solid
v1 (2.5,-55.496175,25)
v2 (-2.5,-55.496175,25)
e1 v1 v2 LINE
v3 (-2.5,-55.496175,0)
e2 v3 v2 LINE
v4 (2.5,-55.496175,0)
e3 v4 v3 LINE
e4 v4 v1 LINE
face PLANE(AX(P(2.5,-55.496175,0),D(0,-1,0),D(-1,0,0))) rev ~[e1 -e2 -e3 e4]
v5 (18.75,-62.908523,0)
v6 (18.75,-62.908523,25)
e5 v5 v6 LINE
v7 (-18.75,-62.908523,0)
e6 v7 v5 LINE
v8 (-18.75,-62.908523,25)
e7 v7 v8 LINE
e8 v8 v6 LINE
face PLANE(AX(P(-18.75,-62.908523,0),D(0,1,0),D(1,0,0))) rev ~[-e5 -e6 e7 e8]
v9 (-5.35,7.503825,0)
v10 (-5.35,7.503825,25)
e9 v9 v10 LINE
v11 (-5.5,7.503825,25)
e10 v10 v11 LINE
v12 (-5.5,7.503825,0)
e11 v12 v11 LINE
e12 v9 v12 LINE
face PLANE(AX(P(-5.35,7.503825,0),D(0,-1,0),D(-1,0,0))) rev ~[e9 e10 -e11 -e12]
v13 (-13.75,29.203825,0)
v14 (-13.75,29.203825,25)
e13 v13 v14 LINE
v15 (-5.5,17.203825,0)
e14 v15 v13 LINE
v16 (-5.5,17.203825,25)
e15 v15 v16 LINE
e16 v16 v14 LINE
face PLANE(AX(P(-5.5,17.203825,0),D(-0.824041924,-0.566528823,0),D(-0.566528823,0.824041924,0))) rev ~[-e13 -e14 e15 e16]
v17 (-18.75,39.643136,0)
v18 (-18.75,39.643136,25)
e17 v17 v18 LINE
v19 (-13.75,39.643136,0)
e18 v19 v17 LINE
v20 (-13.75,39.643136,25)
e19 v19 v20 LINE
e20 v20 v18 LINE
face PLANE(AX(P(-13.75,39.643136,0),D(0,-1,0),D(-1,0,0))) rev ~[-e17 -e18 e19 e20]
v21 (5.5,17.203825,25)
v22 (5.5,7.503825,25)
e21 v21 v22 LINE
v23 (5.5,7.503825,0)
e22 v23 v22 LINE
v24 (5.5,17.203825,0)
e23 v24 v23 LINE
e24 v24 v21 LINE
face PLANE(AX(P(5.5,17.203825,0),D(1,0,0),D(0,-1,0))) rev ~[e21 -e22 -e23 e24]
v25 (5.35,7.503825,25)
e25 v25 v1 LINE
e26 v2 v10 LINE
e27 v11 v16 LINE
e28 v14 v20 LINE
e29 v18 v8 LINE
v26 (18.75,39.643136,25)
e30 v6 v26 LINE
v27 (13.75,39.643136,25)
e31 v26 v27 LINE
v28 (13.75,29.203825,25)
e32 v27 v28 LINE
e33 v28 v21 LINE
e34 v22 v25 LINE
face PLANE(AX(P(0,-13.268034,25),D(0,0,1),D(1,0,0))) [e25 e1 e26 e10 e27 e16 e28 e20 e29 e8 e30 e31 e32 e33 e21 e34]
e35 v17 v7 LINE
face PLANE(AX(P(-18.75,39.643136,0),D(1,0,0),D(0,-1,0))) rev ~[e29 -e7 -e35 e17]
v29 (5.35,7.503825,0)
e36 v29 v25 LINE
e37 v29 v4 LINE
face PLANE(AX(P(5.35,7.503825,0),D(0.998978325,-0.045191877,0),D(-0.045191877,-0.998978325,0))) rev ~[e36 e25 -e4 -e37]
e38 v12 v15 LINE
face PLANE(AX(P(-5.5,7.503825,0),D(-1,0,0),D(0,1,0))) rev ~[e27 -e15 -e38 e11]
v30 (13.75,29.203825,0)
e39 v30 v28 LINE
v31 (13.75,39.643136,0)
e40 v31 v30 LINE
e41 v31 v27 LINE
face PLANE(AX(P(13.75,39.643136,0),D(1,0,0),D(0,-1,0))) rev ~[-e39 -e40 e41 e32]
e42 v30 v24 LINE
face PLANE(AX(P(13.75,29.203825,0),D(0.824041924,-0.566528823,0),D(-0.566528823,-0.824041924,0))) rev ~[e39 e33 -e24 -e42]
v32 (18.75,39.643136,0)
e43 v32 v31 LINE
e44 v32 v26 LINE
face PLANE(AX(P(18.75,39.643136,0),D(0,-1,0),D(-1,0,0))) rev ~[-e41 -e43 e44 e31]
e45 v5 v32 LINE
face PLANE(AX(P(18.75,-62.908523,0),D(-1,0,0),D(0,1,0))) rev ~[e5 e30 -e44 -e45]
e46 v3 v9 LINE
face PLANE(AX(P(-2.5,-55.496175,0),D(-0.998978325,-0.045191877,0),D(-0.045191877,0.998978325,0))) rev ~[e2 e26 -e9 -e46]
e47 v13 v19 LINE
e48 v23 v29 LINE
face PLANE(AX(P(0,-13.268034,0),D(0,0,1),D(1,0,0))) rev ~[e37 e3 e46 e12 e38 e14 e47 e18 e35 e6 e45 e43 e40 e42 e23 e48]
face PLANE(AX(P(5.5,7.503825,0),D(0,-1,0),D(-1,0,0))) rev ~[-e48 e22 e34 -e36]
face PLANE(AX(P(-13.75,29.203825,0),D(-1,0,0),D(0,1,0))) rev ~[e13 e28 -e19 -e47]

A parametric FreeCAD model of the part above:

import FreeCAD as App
import Part
import Sketcher

doc = App.newDocument("Part")
params = doc.addObject("Spreadsheet::Sheet", "Params")
for row, (alias, value) in enumerate([
    ("sketch1_width", "5 mm"),
    ("sketch1_width2", "37.5 mm"),
    ("sketch1_height", "9.7 mm"),
    ("sketch1_width3", "0.15 mm"),
    ("pad1_length", "25 mm"),
], start=1):
    params.set(f"A{row}", alias)
    params.set(f"B{row}", "=" + value)
    params.setAlias(f"B{row}", alias)

body = doc.addObject("PartDesign::Body", "Body")

# Sketch on XY plane
sketch1 = doc.addObject("Sketcher::SketchObject", "Sketch")
body.addObject(sketch1)
sketch1.AttachmentSupport = (doc.XY_Plane, [""])
sketch1.MapMode = "FlatFace"
sketch1.addGeometry([
    Part.LineSegment(App.Vector(2.5, -55.5, 0), App.Vector(-2.5, -55.5, 0)),  # 0
    Part.LineSegment(App.Vector(-2.5, -55.5, 0), App.Vector(-5.35, 7.5, 0)),  # 1
    Part.LineSegment(App.Vector(-5.35, 7.5, 0), App.Vector(-5.5, 7.5, 0)),  # 2
    Part.LineSegment(App.Vector(-5.5, 7.5, 0), App.Vector(-5.5, 17.2, 0)),  # 3
    Part.LineSegment(App.Vector(-5.5, 17.2, 0), App.Vector(-13.75, 29.2, 0)),  # 4
    Part.LineSegment(App.Vector(-13.75, 29.2, 0), App.Vector(-13.75, 39.64, 0)),  # 5
    Part.LineSegment(App.Vector(-13.75, 39.64, 0), App.Vector(-18.75, 39.64, 0)),  # 6
    Part.LineSegment(App.Vector(-18.75, 39.64, 0), App.Vector(-18.75, -62.91, 0)),  # 7
    Part.LineSegment(App.Vector(-18.75, -62.91, 0), App.Vector(18.75, -62.91, 0)),  # 8
    Part.LineSegment(App.Vector(18.75, -62.91, 0), App.Vector(18.75, 39.64, 0)),  # 9
    Part.LineSegment(App.Vector(18.75, 39.64, 0), App.Vector(13.75, 39.64, 0)),  # 10
    Part.LineSegment(App.Vector(13.75, 39.64, 0), App.Vector(13.75, 29.2, 0)),  # 11
    Part.LineSegment(App.Vector(13.75, 29.2, 0), App.Vector(5.5, 17.2, 0)),  # 12
    Part.LineSegment(App.Vector(5.5, 17.2, 0), App.Vector(5.5, 7.5, 0)),  # 13
    Part.LineSegment(App.Vector(5.5, 7.5, 0), App.Vector(5.35, 7.5, 0)),  # 14
    Part.LineSegment(App.Vector(5.35, 7.5, 0), App.Vector(2.5, -55.5, 0)),  # 15
], False)
sketch1.addConstraint([
    Sketcher.Constraint("Coincident", 0, 2, 1, 1),
    Sketcher.Constraint("Coincident", 1, 2, 2, 1),
    Sketcher.Constraint("Coincident", 2, 2, 3, 1),
    Sketcher.Constraint("Coincident", 3, 2, 4, 1),
    Sketcher.Constraint("Coincident", 4, 2, 5, 1),
    Sketcher.Constraint("Coincident", 5, 2, 6, 1),
    Sketcher.Constraint("Coincident", 6, 2, 7, 1),
    Sketcher.Constraint("Coincident", 7, 2, 8, 1),
    Sketcher.Constraint("Coincident", 8, 2, 9, 1),
    Sketcher.Constraint("Coincident", 9, 2, 10, 1),
    Sketcher.Constraint("Coincident", 10, 2, 11, 1),
    Sketcher.Constraint("Coincident", 11, 2, 12, 1),
    Sketcher.Constraint("Coincident", 12, 2, 13, 1),
    Sketcher.Constraint("Coincident", 13, 2, 14, 1),
    Sketcher.Constraint("Coincident", 14, 2, 15, 1),
    Sketcher.Constraint("Coincident", 15, 2, 0, 1),
    Sketcher.Constraint("Horizontal", 0),
    Sketcher.Constraint("Horizontal", 2),
    Sketcher.Constraint("Vertical", 3),
    Sketcher.Constraint("Vertical", 5),
    Sketcher.Constraint("Horizontal", 6),
    Sketcher.Constraint("Vertical", 7),
    Sketcher.Constraint("Horizontal", 8),
    Sketcher.Constraint("Vertical", 9),
    Sketcher.Constraint("Horizontal", 10),
    Sketcher.Constraint("Vertical", 11),
    Sketcher.Constraint("Vertical", 13),
    Sketcher.Constraint("Horizontal", 14),
    Sketcher.Constraint("Symmetric", 6, 2, 9, 2, -2),
    Sketcher.Constraint("Symmetric", 4, 2, 11, 2, -2),
    Sketcher.Constraint("Symmetric", 3, 2, 12, 2, -2),
    Sketcher.Constraint("Symmetric", 1, 2, 14, 2, -2),
    Sketcher.Constraint("Equal", 0, 6),
    Sketcher.Constraint("Equal", 1, 15),
    Sketcher.Constraint("DistanceX", 0, 2, 0, 1, 5.0),
    Sketcher.Constraint("DistanceX", 8, 1, 8, 2, 37.5),
    Sketcher.Constraint("DistanceY", 3, 1, 3, 2, 9.7),
    Sketcher.Constraint("DistanceY", 0, 2, 1, 2, 63.0),
    Sketcher.Constraint("DistanceX", 2, 2, 0, 2, 3.0),
    Sketcher.Constraint("DistanceY", 3, 2, 4, 2, 12.0),
    Sketcher.Constraint("DistanceX", 2, 2, 2, 1, 0.15),
    Sketcher.Constraint("DistanceY", 5, 1, 5, 2, 10.439311),
    Sketcher.Constraint("DistanceY", 7, 2, 7, 1, 102.551659),
    Sketcher.Constraint("DistanceY", 0, 2, -1, 1, 55.496175),
])
sketch1.setExpression("Constraints[34]", "Params.sketch1_width")
sketch1.setExpression("Constraints[35]", "Params.sketch1_width2")
sketch1.setExpression("Constraints[36]", "Params.sketch1_height")
sketch1.setExpression("Constraints[40]", "Params.sketch1_width3")
pad1 = doc.addObject("PartDesign::Pad", "Pad")
body.addObject(pad1)
pad1.Profile = sketch1
pad1.setExpression("Length", "Params.pad1_length")

doc.recompute()
